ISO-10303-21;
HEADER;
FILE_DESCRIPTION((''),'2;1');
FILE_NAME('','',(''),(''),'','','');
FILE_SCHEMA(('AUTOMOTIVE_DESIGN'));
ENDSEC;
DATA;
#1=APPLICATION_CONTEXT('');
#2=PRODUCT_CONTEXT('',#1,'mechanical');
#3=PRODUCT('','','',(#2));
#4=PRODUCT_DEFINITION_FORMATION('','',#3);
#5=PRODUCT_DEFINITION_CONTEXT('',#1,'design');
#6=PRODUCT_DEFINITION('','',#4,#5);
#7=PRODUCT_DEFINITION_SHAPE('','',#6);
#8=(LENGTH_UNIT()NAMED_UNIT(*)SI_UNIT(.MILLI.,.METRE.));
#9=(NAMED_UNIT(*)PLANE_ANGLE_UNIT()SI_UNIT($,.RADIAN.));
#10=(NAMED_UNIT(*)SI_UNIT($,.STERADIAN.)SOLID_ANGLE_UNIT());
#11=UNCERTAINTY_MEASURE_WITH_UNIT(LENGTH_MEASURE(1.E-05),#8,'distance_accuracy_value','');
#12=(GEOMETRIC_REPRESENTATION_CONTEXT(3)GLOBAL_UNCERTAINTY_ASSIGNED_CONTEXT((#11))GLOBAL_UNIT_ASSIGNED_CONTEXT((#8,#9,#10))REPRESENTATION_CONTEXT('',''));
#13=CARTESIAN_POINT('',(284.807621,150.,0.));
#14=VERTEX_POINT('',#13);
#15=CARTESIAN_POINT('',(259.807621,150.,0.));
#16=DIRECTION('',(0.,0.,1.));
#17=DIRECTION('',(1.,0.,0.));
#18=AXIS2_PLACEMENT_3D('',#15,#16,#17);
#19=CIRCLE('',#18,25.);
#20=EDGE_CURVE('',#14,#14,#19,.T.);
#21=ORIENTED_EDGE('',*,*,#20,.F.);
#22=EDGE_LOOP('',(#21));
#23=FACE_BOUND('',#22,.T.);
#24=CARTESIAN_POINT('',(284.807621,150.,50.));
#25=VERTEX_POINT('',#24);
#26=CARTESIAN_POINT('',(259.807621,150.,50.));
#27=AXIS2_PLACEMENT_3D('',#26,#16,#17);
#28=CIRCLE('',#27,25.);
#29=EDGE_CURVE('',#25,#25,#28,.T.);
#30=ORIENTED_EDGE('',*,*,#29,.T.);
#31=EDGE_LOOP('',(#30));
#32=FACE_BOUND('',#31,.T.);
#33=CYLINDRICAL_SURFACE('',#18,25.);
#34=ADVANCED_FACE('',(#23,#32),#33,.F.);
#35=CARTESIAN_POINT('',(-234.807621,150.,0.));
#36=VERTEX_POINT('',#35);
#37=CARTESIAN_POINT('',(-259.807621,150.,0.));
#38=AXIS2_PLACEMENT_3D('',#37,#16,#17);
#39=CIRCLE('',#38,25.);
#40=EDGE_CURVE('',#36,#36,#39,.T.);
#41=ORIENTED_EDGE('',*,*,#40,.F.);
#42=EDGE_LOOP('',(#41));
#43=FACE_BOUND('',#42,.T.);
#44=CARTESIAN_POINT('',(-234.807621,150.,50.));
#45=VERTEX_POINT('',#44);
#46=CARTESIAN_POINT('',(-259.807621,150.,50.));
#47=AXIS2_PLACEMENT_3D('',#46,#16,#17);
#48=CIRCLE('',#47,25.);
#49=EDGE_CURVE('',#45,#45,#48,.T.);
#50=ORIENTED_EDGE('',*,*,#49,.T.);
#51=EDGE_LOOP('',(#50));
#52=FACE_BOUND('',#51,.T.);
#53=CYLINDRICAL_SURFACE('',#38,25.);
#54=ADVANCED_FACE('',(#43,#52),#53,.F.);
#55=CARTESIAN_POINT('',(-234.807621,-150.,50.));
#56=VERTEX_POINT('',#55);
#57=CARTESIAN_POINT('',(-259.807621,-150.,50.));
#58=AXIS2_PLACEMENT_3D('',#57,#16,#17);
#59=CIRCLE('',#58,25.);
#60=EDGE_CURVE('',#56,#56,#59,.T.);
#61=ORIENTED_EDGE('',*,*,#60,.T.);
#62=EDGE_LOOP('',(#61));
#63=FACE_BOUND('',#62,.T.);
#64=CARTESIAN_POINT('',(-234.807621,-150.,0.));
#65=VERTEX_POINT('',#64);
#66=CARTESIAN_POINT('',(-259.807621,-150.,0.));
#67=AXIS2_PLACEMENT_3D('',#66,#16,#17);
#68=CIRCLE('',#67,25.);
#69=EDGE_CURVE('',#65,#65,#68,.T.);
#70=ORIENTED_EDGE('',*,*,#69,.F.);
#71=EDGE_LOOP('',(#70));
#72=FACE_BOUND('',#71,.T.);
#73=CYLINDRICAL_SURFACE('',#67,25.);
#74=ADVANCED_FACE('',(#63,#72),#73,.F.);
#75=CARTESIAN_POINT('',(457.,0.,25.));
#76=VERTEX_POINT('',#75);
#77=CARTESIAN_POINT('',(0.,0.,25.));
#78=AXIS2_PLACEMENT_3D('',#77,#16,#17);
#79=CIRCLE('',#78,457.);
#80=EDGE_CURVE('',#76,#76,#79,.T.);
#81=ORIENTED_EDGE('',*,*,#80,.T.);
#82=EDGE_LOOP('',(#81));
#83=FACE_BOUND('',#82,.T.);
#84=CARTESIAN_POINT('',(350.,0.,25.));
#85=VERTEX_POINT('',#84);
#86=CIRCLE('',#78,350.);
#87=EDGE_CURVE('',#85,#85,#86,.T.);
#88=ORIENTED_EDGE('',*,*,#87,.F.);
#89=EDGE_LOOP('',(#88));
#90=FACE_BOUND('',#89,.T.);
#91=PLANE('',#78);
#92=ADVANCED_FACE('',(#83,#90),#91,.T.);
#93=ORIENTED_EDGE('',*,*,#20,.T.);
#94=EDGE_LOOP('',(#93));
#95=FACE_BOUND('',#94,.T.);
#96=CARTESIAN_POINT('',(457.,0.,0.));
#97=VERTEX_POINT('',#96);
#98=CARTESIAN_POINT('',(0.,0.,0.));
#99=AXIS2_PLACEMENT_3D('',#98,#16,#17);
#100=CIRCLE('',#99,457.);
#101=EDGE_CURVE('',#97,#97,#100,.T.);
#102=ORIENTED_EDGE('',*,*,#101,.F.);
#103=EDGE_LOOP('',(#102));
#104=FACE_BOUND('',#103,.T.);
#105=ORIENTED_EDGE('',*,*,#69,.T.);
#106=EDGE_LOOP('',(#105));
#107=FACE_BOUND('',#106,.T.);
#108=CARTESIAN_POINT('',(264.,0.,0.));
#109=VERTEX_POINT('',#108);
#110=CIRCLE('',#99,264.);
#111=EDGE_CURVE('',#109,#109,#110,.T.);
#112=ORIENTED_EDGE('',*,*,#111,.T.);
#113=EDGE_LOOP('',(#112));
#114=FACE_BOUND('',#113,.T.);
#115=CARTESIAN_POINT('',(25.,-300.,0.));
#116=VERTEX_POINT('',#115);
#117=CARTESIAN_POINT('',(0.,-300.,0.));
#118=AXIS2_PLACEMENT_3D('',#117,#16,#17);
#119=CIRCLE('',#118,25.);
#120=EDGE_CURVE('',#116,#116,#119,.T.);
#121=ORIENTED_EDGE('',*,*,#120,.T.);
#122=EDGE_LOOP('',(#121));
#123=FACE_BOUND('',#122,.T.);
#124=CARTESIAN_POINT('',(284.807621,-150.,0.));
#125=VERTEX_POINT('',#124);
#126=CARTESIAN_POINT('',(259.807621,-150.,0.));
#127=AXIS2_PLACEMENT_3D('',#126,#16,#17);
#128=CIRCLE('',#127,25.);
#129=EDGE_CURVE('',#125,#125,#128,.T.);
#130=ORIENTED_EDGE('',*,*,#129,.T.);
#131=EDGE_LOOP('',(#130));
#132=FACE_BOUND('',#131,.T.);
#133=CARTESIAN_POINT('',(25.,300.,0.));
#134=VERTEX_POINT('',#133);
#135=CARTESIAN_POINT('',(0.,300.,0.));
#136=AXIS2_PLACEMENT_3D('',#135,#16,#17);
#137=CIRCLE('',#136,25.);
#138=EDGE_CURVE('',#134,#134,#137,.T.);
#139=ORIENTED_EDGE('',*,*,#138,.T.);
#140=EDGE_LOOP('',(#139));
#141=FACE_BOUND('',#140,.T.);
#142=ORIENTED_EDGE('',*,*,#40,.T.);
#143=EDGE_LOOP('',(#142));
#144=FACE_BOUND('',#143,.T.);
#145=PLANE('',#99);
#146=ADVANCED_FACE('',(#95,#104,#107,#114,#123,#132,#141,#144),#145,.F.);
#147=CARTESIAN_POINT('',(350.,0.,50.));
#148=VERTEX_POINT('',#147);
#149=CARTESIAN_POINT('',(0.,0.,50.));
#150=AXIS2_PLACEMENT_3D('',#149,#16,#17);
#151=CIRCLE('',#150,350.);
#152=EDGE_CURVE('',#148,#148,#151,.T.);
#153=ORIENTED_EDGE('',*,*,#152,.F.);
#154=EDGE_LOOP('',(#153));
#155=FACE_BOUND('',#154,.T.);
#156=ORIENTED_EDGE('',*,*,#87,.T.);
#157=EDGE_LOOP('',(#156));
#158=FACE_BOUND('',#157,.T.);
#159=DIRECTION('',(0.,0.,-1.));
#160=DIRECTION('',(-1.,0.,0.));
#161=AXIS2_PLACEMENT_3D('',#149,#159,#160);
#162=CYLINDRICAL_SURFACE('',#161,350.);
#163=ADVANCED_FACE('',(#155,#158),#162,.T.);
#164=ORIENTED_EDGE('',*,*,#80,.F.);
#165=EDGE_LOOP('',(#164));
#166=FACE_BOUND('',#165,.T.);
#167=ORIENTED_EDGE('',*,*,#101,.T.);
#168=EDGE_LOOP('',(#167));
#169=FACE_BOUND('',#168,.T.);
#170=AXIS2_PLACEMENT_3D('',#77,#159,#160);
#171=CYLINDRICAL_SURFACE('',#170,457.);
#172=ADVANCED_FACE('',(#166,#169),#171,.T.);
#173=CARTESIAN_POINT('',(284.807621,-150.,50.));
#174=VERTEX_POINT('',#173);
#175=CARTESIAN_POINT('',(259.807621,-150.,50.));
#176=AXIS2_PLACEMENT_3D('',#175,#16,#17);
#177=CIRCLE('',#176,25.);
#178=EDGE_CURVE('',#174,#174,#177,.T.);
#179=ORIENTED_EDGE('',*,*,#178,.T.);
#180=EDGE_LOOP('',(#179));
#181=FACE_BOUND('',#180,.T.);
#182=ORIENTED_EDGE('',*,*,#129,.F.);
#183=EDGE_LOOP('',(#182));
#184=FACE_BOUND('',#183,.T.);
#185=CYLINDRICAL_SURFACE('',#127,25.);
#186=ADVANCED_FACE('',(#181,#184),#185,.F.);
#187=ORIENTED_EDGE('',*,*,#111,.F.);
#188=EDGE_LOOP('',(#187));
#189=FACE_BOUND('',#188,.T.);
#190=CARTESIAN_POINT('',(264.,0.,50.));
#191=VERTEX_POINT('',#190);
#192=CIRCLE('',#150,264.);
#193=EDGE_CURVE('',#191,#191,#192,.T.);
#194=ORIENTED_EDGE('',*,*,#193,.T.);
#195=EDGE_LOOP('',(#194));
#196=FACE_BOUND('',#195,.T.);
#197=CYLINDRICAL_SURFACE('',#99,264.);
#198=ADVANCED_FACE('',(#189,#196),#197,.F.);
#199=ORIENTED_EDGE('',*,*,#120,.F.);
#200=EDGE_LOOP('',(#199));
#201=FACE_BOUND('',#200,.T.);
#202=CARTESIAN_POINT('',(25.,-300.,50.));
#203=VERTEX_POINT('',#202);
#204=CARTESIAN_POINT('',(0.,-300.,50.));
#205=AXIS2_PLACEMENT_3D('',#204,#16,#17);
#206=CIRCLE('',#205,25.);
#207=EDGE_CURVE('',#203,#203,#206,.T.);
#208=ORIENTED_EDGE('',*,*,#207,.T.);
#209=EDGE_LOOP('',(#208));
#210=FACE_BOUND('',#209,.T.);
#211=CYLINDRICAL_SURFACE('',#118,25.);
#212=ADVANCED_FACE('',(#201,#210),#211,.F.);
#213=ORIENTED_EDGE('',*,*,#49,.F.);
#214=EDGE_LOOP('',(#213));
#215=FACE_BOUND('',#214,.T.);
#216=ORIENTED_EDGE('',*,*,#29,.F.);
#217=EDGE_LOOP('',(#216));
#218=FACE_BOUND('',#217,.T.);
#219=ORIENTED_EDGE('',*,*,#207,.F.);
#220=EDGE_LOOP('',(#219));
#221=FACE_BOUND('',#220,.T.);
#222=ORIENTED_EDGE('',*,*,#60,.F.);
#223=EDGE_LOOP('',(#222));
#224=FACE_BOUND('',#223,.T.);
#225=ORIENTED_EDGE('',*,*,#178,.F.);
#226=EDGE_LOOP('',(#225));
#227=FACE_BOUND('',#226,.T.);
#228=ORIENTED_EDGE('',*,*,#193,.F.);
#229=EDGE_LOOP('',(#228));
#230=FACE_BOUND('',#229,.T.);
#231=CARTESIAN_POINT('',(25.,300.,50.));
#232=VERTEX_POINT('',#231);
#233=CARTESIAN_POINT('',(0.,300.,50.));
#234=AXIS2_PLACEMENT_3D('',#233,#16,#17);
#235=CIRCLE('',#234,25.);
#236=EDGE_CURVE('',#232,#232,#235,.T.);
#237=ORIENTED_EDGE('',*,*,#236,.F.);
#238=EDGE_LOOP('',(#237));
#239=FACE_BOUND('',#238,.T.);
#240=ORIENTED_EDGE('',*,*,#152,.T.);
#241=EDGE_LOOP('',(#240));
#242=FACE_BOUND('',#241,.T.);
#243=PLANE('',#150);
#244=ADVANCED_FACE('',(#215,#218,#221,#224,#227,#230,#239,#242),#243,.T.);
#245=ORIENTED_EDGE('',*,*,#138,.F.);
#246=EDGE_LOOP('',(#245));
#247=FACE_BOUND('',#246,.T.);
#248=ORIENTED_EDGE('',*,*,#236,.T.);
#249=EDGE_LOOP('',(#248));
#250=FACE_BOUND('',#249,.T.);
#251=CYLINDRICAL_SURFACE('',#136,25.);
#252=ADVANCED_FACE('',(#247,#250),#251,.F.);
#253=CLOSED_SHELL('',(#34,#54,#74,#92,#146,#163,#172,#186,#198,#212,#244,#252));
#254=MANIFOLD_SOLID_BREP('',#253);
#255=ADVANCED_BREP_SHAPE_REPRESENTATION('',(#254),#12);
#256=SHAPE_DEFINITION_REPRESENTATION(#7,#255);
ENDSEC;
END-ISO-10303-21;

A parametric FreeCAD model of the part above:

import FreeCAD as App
import Part
import Sketcher
from FreeCAD import Vector
Q = App.Units.Quantity

doc = App.newDocument("Part")
params = doc.addObject("Spreadsheet::Sheet", "Params")
for row, (alias, value) in enumerate([
    ("sketch1_diameter", "914 mm"),
    ("pad1_length", "25 mm"),
    ("sketch2_diameter", "700 mm"),
    ("pad2_length", "25 mm"),
    ("sketch3_diameter", "50 mm"),
    ("sketch3_diameter2", "528 mm"),
], start=1):
    params.set(f"A{row}", alias)
    params.set(f"B{row}", "=" + value)
    params.setAlias(f"B{row}", alias)

body = doc.addObject("PartDesign::Body", "Body")

# Sketch on XY plane
sketch1 = doc.addObject("Sketcher::SketchObject", "Sketch")
body.addObject(sketch1)
sketch1.AttachmentSupport = (doc.XY_Plane, [""])
sketch1.MapMode = "FlatFace"
sketch1.addGeometry(Part.Circle(Vector(0, 0, 0), Vector(0, 0, 1), 457), False)
sketch1.addConstraint(Sketcher.Constraint("Coincident", 0, 3, -1, 1))
sketch1.addConstraint(Sketcher.Constraint("Diameter", 0, Q("914 mm")))
sketch1.setExpression("Constraints[1]", "Params.sketch1_diameter")
pad1 = doc.addObject("PartDesign::Pad", "Pad")
body.addObject(pad1)
pad1.Profile = sketch1
pad1.setExpression("Length", "Params.pad1_length")

# Sketch on XY plane
sketch2 = doc.addObject("Sketcher::SketchObject", "Sketch001")
body.addObject(sketch2)
sketch2.AttachmentSupport = (doc.XY_Plane, [""])
sketch2.MapMode = "FlatFace"
sketch2.AttachmentOffset = App.Placement(Vector(0, 0, 25), App.Rotation())
sketch2.addGeometry(Part.Circle(Vector(0, 0, 0), Vector(0, 0, 1), 350), False)
sketch2.addConstraint(Sketcher.Constraint("Coincident", 0, 3, -1, 1))
sketch2.addConstraint(Sketcher.Constraint("Diameter", 0, Q("700 mm")))
sketch2.setExpression("Constraints[1]", "Params.sketch2_diameter")
pad2 = doc.addObject("PartDesign::Pad", "Pad001")
body.addObject(pad2)
pad2.Profile = sketch2
pad2.setExpression("Length", "Params.pad2_length")

# Sketch on XY plane
sketch3 = doc.addObject("Sketcher::SketchObject", "Sketch002")
body.addObject(sketch3)
sketch3.AttachmentSupport = (doc.XY_Plane, [""])
sketch3.MapMode = "FlatFace"
sketch3.AttachmentOffset = App.Placement(Vector(0, 0, 50), App.Rotation())
sketch3.addGeometry(Part.Circle(Vector(0, 300, 0), Vector(0, 0, 1), 25), False)
sketch3.addGeometry(Part.Circle(Vector(260, 150, 0), Vector(0, 0, 1), 25), False)
sketch3.addGeometry(Part.Circle(Vector(260, -150, 0), Vector(0, 0, 1), 25), False)
sketch3.addGeometry(Part.Circle(Vector(0, -300, 0), Vector(0, 0, 1), 25), False)
sketch3.addGeometry(Part.Circle(Vector(-260, -150, 0), Vector(0, 0, 1), 25), False)
sketch3.addGeometry(Part.Circle(Vector(-260, 150, 0), Vector(0, 0, 1), 25), False)
sketch3.addGeometry(Part.Circle(Vector(0, 0, 0), Vector(0, 0, 1), 264), False)
sketch3.addConstraint(Sketcher.Constraint("Coincident", 6, 3, -1, 1))
sketch3.addConstraint(Sketcher.Constraint("Equal", 0, 1))
sketch3.addConstraint(Sketcher.Constraint("Equal", 1, 2))
sketch3.addConstraint(Sketcher.Constraint("Equal", 2, 3))
sketch3.addConstraint(Sketcher.Constraint("Equal", 3, 4))
sketch3.addConstraint(Sketcher.Constraint("Equal", 4, 5))
sketch3.addConstraint(Sketcher.Constraint("Symmetric", 0, 3, 3, 3, -1, 1))
sketch3.addConstraint(Sketcher.Constraint("Symmetric", 1, 3, 4, 3, -1, 1))
sketch3.addConstraint(Sketcher.Constraint("Symmetric", 2, 3, 5, 3, -1, 1))
sketch3.addConstraint(Sketcher.Constraint("Symmetric", 2, 3, 4, 3, -2))
sketch3.addConstraint(Sketcher.Constraint("PointOnObject", 0, 3, -2))
sketch3.addConstraint(Sketcher.Constraint("Diameter", 0, Q("50 mm")))
sketch3.addConstraint(Sketcher.Constraint("Diameter", 6, Q("528 mm")))
sketch3.addConstraint(Sketcher.Constraint("DistanceY", -1, 1, 0, 3, Q("300 mm")))
sketch3.addConstraint(Sketcher.Constraint("DistanceY", -1, 1, 1, 3, Q("150 mm")))
sketch3.addConstraint(Sketcher.Constraint("DistanceX", -1, 1, 1, 3, Q("259.807621 mm")))
sketch3.setExpression("Constraints[11]", "Params.sketch3_diameter")
sketch3.setExpression("Constraints[12]", "Params.sketch3_diameter2")
pocket1 = doc.addObject("PartDesign::Pocket", "Pocket")
body.addObject(pocket1)
pocket1.Profile = sketch3
pocket1.Type = "ThroughAll"
pocket1.Midplane = True

doc.recompute()
